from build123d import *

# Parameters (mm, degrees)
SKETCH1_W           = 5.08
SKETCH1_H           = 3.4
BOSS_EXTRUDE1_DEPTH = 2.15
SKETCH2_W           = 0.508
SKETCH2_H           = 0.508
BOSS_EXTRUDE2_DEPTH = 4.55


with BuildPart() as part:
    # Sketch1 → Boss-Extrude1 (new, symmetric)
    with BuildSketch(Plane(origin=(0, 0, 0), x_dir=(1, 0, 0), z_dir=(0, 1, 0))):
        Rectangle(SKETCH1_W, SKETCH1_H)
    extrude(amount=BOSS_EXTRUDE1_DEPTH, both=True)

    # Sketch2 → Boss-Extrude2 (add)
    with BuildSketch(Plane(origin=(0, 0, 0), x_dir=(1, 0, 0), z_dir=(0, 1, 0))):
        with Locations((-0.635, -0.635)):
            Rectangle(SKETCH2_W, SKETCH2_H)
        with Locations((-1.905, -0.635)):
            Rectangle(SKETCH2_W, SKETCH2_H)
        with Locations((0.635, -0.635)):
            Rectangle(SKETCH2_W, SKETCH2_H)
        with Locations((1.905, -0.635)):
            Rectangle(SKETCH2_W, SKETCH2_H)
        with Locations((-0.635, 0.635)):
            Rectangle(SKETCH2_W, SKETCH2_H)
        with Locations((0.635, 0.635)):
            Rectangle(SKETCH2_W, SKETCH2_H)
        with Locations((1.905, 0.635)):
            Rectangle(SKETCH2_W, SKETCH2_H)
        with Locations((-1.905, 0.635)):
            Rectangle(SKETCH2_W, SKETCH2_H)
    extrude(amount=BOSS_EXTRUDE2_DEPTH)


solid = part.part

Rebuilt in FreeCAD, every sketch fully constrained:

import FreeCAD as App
import Part
import Sketcher

V = App.Vector
Q = App.Units.Quantity


def add_polygon(sketch, points):
    """Adds a closed chain of lines whose ends are joined by coincident constraints."""
    first, n = sketch.GeometryCount, len(points)
    for a, b in zip(points, points[1:] + points[:1]):
        sketch.addGeometry(Part.LineSegment(App.Vector(*a, 0), App.Vector(*b, 0)), False)
    for i in range(n):
        sketch.addConstraint(Sketcher.Constraint("Coincident", first + i, 2, first + (i + 1) % n, 1))

doc = App.newDocument("Part")
params = doc.addObject("Spreadsheet::Sheet", "Params")
for row, (alias, value) in enumerate([
    ("sketch1_width", "0.2 in"),
    ("pad1_length", "4.3 mm"),
    ("sketch2_width", "0.02 in"),
    ("pad2_length", "4.55 mm"),
], start=1):
    params.set(f"A{row}", alias)
    params.set(f"B{row}", "=" + value)
    params.setAlias(f"B{row}", alias)

body = doc.addObject("PartDesign::Body", "Body")

sketch1 = body.newObject("Sketcher::SketchObject", "Sketch")
sketch1.AttachmentSupport = (doc.getObject("XZ_Plane"), [""])
sketch1.MapMode = "FlatFace"
add_polygon(sketch1, [(-2.5, -1.7), (-2.5, 1.7), (2.5, 1.7), (2.5, -1.7)])
sketch1.addConstraint(Sketcher.Constraint("Vertical", 0))
sketch1.addConstraint(Sketcher.Constraint("Horizontal", 1))
sketch1.addConstraint(Sketcher.Constraint("Vertical", 2))
sketch1.addConstraint(Sketcher.Constraint("Horizontal", 3))
sketch1.addConstraint(Sketcher.Constraint("Symmetric", 0, 2, 2, 2, -1, 1))
sketch1.addConstraint(Sketcher.Constraint("DistanceX", 1, 1, 1, 2, Q("0.2 in")))
sketch1.addConstraint(Sketcher.Constraint("DistanceY", 0, 1, 0, 2, Q("3.4 mm")))
sketch1.setExpression("Constraints[9]", "Params.sketch1_width")
pad1 = body.newObject("PartDesign::Pad", "Pad")
pad1.Profile = sketch1
pad1.setExpression("Length", "Params.pad1_length")
pad1.Midplane = True

sketch2 = body.newObject("Sketcher::SketchObject", "Sketch001")
sketch2.AttachmentSupport = (doc.getObject("XZ_Plane"), [""])
sketch2.MapMode = "FlatFace"
add_polygon(sketch2, [(-0.9, 0.4), (-0.9, 0.9), (-0.4, 0.9), (-0.4, 0.4)])
add_polygon(sketch2, [(-2.2, 0.4), (-2.2, 0.9), (-1.7, 0.9), (-1.7, 0.4)])
add_polygon(sketch2, [(0.4, 0.4), (0.4, 0.9), (0.9, 0.9), (0.9, 0.4)])
add_polygon(sketch2, [(1.7, 0.4), (1.7, 0.9), (2.2, 0.9), (2.2, 0.4)])
add_polygon(sketch2, [(-0.9, -0.9), (-0.9, -0.4), (-0.4, -0.4), (-0.4, -0.9)])
add_polygon(sketch2, [(0.4, -0.9), (0.4, -0.4), (0.9, -0.4), (0.9, -0.9)])
add_polygon(sketch2, [(1.7, -0.9), (1.7, -0.4), (2.2, -0.4), (2.2, -0.9)])
add_polygon(sketch2, [(-2.2, -0.9), (-2.2, -0.4), (-1.7, -0.4), (-1.7, -0.9)])
sketch2.addConstraint(Sketcher.Constraint("Vertical", 0))
sketch2.addConstraint(Sketcher.Constraint("Horizontal", 1))
sketch2.addConstraint(Sketcher.Constraint("Vertical", 2))
sketch2.addConstraint(Sketcher.Constraint("Horizontal", 3))
sketch2.addConstraint(Sketcher.Constraint("Vertical", 4))
sketch2.addConstraint(Sketcher.Constraint("Horizontal", 5))
sketch2.addConstraint(Sketcher.Constraint("Vertical", 6))
sketch2.addConstraint(Sketcher.Constraint("Horizontal", 7))
sketch2.addConstraint(Sketcher.Constraint("Vertical", 8))
sketch2.addConstraint(Sketcher.Constraint("Horizontal", 9))
sketch2.addConstraint(Sketcher.Constraint("Vertical", 10))
sketch2.addConstraint(Sketcher.Constraint("Horizontal", 11))
sketch2.addConstraint(Sketcher.Constraint("Vertical", 12))
sketch2.addConstraint(Sketcher.Constraint("Horizontal", 13))
sketch2.addConstraint(Sketcher.Constraint("Vertical", 14))
sketch2.addConstraint(Sketcher.Constraint("Horizontal", 15))
sketch2.addConstraint(Sketcher.Constraint("Vertical", 16))
sketch2.addConstraint(Sketcher.Constraint("Horizontal", 17))
sketch2.addConstraint(Sketcher.Constraint("Vertical", 18))
sketch2.addConstraint(Sketcher.Constraint("Horizontal", 19))
sketch2.addConstraint(Sketcher.Constraint("Vertical", 20))
sketch2.addConstraint(Sketcher.Constraint("Horizontal", 21))
sketch2.addConstraint(Sketcher.Constraint("Vertical", 22))
sketch2.addConstraint(Sketcher.Constraint("Horizontal", 23))
sketch2.addConstraint(Sketcher.Constraint("Vertical", 24))
sketch2.addConstraint(Sketcher.Constraint("Horizontal", 25))
sketch2.addConstraint(Sketcher.Constraint("Vertical", 26))
sketch2.addConstraint(Sketcher.Constraint("Horizontal", 27))
sketch2.addConstraint(Sketcher.Constraint("Vertical", 28))
sketch2.addConstraint(Sketcher.Constraint("Horizontal", 29))
sketch2.addConstraint(Sketcher.Constraint("Vertical", 30))
sketch2.addConstraint(Sketcher.Constraint("Horizontal", 31))
sketch2.addConstraint(Sketcher.Constraint("Symmetric", 10, 2, 16, 2, -1, 1))
sketch2.addConstraint(Sketcher.Constraint("Symmetric", 8, 2, 18, 2, -1, 1))
sketch2.addConstraint(Sketcher.Constraint("Symmetric", 2, 2, 20, 2, -1, 1))
sketch2.addConstraint(Sketcher.Constraint("Symmetric", 0, 2, 22, 2, -1, 1))
sketch2.addConstraint(Sketcher.Constraint("Symmetric", 6, 2, 24, 2, -1, 1))
sketch2.addConstraint(Sketcher.Constraint("Symmetric", 4, 2, 26, 2, -1, 1))
sketch2.addConstraint(Sketcher.Constraint("Symmetric", 14, 2, 28, 2, -1, 1))
sketch2.addConstraint(Sketcher.Constraint("Symmetric", 12, 2, 30, 2, -1, 1))
sketch2.addConstraint(Sketcher.Constraint("Symmetric", 1, 2, 8, 2, -2))
sketch2.addConstraint(Sketcher.Constraint("Symmetric", 3, 2, 10, 2, -2))
sketch2.addConstraint(Sketcher.Constraint("Symmetric", 5, 2, 12, 2, -2))
sketch2.addConstraint(Sketcher.Constraint("Symmetric", 7, 2, 14, 2, -2))
sketch2.addConstraint(Sketcher.Constraint("Horizontal", 1, 2, 4, 2))
sketch2.addConstraint(Sketcher.Constraint("Horizontal", 3, 2, 6, 2))
sketch2.addConstraint(Sketcher.Constraint("Equal", 3, 5))
sketch2.addConstraint(Sketcher.Constraint("Equal", 31, 0))
sketch2.addConstraint(Sketcher.Constraint("DistanceX", 1, 1, 1, 2, Q("0.02 in")))
sketch2.addConstraint(Sketcher.Constraint("DistanceX", 4, 2, 0, 2, Q("0.05 in")))
sketch2.addConstraint(Sketcher.Constraint("DistanceX", 1, 2, 8, 2, Q("0.03 in")))
sketch2.addConstraint(Sketcher.Constraint("DistanceY", 16, 2, 3, 2, Q("0.03 in")))
sketch2.setExpression("Constraints[80]", "Params.sketch2_width")
pad2 = body.newObject("PartDesign::Pad", "Pad001")
pad2.Profile = sketch2
pad2.setExpression("Length", "Params.pad2_length")
pad2.Reversed = True

doc.recompute()
